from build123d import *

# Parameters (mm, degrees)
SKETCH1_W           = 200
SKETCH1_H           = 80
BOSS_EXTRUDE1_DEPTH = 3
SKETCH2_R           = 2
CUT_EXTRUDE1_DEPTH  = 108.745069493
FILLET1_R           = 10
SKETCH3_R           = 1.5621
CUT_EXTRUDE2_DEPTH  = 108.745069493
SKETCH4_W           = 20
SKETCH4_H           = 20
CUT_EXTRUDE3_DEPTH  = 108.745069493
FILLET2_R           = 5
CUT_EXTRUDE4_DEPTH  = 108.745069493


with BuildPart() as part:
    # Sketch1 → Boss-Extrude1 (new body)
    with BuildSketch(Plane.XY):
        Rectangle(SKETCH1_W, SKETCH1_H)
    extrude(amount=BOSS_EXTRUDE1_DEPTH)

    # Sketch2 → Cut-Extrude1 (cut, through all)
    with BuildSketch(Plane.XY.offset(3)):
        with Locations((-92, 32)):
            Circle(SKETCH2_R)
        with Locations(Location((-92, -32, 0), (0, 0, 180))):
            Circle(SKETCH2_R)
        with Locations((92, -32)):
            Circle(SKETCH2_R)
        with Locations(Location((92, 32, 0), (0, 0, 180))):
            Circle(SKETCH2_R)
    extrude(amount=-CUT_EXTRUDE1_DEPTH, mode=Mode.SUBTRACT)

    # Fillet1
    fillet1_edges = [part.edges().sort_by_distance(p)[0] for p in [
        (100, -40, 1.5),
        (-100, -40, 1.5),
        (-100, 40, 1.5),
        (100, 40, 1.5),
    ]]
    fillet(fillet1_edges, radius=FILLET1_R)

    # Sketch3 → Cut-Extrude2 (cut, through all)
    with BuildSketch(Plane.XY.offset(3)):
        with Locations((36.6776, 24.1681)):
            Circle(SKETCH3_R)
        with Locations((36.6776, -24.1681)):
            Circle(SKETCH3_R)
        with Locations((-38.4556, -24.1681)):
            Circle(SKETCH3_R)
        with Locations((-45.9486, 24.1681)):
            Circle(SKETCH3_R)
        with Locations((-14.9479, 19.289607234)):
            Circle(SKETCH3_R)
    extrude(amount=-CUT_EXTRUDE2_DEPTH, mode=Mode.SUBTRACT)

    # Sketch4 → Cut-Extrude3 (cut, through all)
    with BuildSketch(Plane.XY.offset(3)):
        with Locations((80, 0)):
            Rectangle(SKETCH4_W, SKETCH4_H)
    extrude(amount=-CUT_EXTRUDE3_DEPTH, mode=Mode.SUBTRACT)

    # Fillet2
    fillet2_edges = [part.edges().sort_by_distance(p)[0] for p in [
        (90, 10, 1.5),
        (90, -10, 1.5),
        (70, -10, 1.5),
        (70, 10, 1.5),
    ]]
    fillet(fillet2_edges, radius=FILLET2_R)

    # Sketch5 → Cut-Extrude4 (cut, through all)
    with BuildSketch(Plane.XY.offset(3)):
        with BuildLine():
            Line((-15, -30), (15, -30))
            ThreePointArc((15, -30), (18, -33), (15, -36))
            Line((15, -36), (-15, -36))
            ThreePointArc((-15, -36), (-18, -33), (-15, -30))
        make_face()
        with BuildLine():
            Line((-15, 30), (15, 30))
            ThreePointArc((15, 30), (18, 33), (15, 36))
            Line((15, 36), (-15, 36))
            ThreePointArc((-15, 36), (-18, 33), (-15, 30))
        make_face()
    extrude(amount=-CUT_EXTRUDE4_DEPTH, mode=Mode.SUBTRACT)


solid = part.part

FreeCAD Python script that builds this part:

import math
import FreeCAD as App
import Part
import Sketcher
Q = App.Units.Quantity


def edges_at(feature, points):
    """Names of the edges that pass closest to the given points."""
    edges = feature.Shape.Edges
    near = lambda p: min(range(len(edges)), key=lambda i: edges[i].distToShape(Part.Vertex(*p))[0])
    return sorted({f"Edge{near(p) + 1}" for p in points})


def add_polygon(sketch, points):
    """Adds a closed chain of lines whose ends are joined by coincident constraints."""
    first, n = sketch.GeometryCount, len(points)
    for a, b in zip(points, points[1:] + points[:1]):
        sketch.addGeometry(Part.LineSegment(App.Vector(*a, 0), App.Vector(*b, 0)), False)
    for i in range(n):
        sketch.addConstraint(Sketcher.Constraint("Coincident", first + i, 2, first + (i + 1) % n, 1))

doc = App.newDocument("Part")
body = doc.addObject("PartDesign::Body", "Body")

sketch1 = doc.addObject("Sketcher::SketchObject", "Sketch")
body.addObject(sketch1)
sketch1.AttachmentSupport = (doc.XY_Plane, [""])
sketch1.MapMode = "FlatFace"
add_polygon(sketch1, [(-100, 40), (-100, -40), (100, -40), (100, 40)])
sketch1.addConstraint(Sketcher.Constraint("Vertical", 0))
sketch1.addConstraint(Sketcher.Constraint("Horizontal", 1))
sketch1.addConstraint(Sketcher.Constraint("Vertical", 2))
sketch1.addConstraint(Sketcher.Constraint("Horizontal", 3))
sketch1.addConstraint(Sketcher.Constraint("Symmetric", 0, 2, 2, 2, -1, 1))
sketch1.addConstraint(Sketcher.Constraint("DistanceX", 1, 1, 1, 2, Q("200 mm")))
sketch1.addConstraint(Sketcher.Constraint("DistanceY", 0, 2, 0, 1, Q("80 mm")))
pad1 = doc.addObject("PartDesign::Pad", "Pad")
body.addObject(pad1)
pad1.Profile = sketch1
pad1.Length = 3

sketch2 = doc.addObject("Sketcher::SketchObject", "Sketch001")
body.addObject(sketch2)
sketch2.AttachmentSupport = (doc.XY_Plane, [""])
sketch2.MapMode = "FlatFace"
sketch2.AttachmentOffset = App.Placement(App.Vector(0, 0, 3), App.Rotation())
sketch2.addGeometry(Part.Circle(App.Vector(-92, 32, 0), App.Vector(0, 0, 1), 2), False)
sketch2.addGeometry(Part.Circle(App.Vector(-92, -32, 0), App.Vector(0, 0, 1), 2), False)
sketch2.addGeometry(Part.Circle(App.Vector(92, -32, 0), App.Vector(0, 0, 1), 2), False)
sketch2.addGeometry(Part.Circle(App.Vector(92, 32, 0), App.Vector(0, 0, 1), 2), False)
sketch2.addConstraint(Sketcher.Constraint("Equal", 0, 1))
sketch2.addConstraint(Sketcher.Constraint("Equal", 1, 2))
sketch2.addConstraint(Sketcher.Constraint("Equal", 2, 3))
sketch2.addConstraint(Sketcher.Constraint("Symmetric", 0, 3, 2, 3, -1, 1))
sketch2.addConstraint(Sketcher.Constraint("Symmetric", 1, 3, 3, 3, -1, 1))
sketch2.addConstraint(Sketcher.Constraint("Symmetric", 1, 3, 2, 3, -2))
sketch2.addConstraint(Sketcher.Constraint("Diameter", 0, Q("4 mm")))
sketch2.addConstraint(Sketcher.Constraint("DistanceX", 0, 3, -1, 1, Q("92 mm")))
sketch2.addConstraint(Sketcher.Constraint("DistanceY", -1, 1, 0, 3, Q("32 mm")))
pocket1 = doc.addObject("PartDesign::Pocket", "Pocket")
body.addObject(pocket1)
pocket1.Profile = sketch2
pocket1.Type = "ThroughAll"
doc.recompute()

fillet = doc.addObject("PartDesign::Fillet", "Fillet")
body.addObject(fillet)
fillet.Base = (pocket1, edges_at(pocket1, [
    (100, -40, 1.5),
    (-100, -40, 1.5),
    (-100, 40, 1.5),
    (100, 40, 1.5),
]))
fillet.Radius = 10

sketch3 = doc.addObject("Sketcher::SketchObject", "Sketch002")
body.addObject(sketch3)
sketch3.AttachmentSupport = (doc.XY_Plane, [""])
sketch3.MapMode = "FlatFace"
sketch3.AttachmentOffset = App.Placement(App.Vector(0, 0, 3), App.Rotation())
sketch3.addGeometry(Part.Circle(App.Vector(36.7, 24.2, 0), App.Vector(0, 0, 1), 1.6), False)
sketch3.addGeometry(Part.Circle(App.Vector(36.7, -24.2, 0), App.Vector(0, 0, 1), 1.6), False)
sketch3.addGeometry(Part.Circle(App.Vector(-38.5, -24.2, 0), App.Vector(0, 0, 1), 1.6), False)
sketch3.addGeometry(Part.Circle(App.Vector(-45.9, 24.2, 0), App.Vector(0, 0, 1), 1.6), False)
sketch3.addGeometry(Part.Circle(App.Vector(-14.9, 19.3, 0), App.Vector(0, 0, 1), 1.6), False)
sketch3.addConstraint(Sketcher.Constraint("Equal", 0, 1))
sketch3.addConstraint(Sketcher.Constraint("Equal", 1, 2))
sketch3.addConstraint(Sketcher.Constraint("Equal", 2, 3))
sketch3.addConstraint(Sketcher.Constraint("Equal", 3, 4))
sketch3.addConstraint(Sketcher.Constraint("Symmetric", 0, 3, 1, 3, -1))
sketch3.addConstraint(Sketcher.Constraint("Horizontal", 1, 3, 2, 3))
sketch3.addConstraint(Sketcher.Constraint("Horizontal", 0, 3, 3, 3))
sketch3.addConstraint(Sketcher.Constraint("Diameter", 0, Q("3.1242 mm")))
sketch3.addConstraint(Sketcher.Constraint("DistanceX", 3, 3, 2, 3, Q("7.493 mm")))
sketch3.addConstraint(Sketcher.Constraint("DistanceX", -1, 1, 0, 3, Q("36.6776 mm")))
sketch3.addConstraint(Sketcher.Constraint("DistanceY", -1, 1, 0, 3, Q("24.1681 mm")))
sketch3.addConstraint(Sketcher.Constraint("DistanceX", 2, 3, -1, 1, Q("38.4556 mm")))
sketch3.addConstraint(Sketcher.Constraint("DistanceX", 4, 3, -1, 1, Q("14.9479 mm")))
sketch3.addConstraint(Sketcher.Constraint("DistanceY", -1, 1, 4, 3, Q("19.289607 mm")))
pocket2 = doc.addObject("PartDesign::Pocket", "Pocket001")
body.addObject(pocket2)
pocket2.Profile = sketch3
pocket2.Type = "ThroughAll"

sketch4 = doc.addObject("Sketcher::SketchObject", "Sketch003")
body.addObject(sketch4)
sketch4.AttachmentSupport = (doc.XY_Plane, [""])
sketch4.MapMode = "FlatFace"
sketch4.AttachmentOffset = App.Placement(App.Vector(0, 0, 3), App.Rotation())
add_polygon(sketch4, [(70, 10), (70, -10), (90, -10), (90, 10)])
sketch4.addConstraint(Sketcher.Constraint("Vertical", 0))
sketch4.addConstraint(Sketcher.Constraint("Horizontal", 1))
sketch4.addConstraint(Sketcher.Constraint("Vertical", 2))
sketch4.addConstraint(Sketcher.Constraint("Horizontal", 3))
sketch4.addConstraint(Sketcher.Constraint("Equal", 3, 0))
sketch4.addConstraint(Sketcher.Constraint("DistanceX", 1, 1, 1, 2, Q("20 mm")))
sketch4.addConstraint(Sketcher.Constraint("DistanceX", -1, 1, 0, 2, Q("70 mm")))
sketch4.addConstraint(Sketcher.Constraint("DistanceY", 0, 2, -1, 1, Q("10 mm")))
pocket3 = doc.addObject("PartDesign::Pocket", "Pocket002")
body.addObject(pocket3)
pocket3.Profile = sketch4
pocket3.Type = "ThroughAll"
doc.recompute()

fillet2 = doc.addObject("PartDesign::Fillet", "Fillet001")
body.addObject(fillet2)
fillet2.Base = (pocket3, edges_at(pocket3, [
    (90, 10, 1.5),
    (90, -10, 1.5),
    (70, -10, 1.5),
    (70, 10, 1.5),
]))
fillet2.Radius = 5

sketch5 = doc.addObject("Sketcher::SketchObject", "Sketch004")
body.addObject(sketch5)
sketch5.AttachmentSupport = (doc.XY_Plane, [""])
sketch5.MapMode = "FlatFace"
sketch5.AttachmentOffset = App.Placement(App.Vector(0, 0, 3), App.Rotation())
sketch5.addGeometry(Part.LineSegment(App.Vector(15, -30, 0), App.Vector(-15, -30, 0)), False)
sketch5.addGeometry(Part.ArcOfCircle(Part.Circle(App.Vector(-15, -33, 0), App.Vector(0, 0, 1), 3), math.radians(90), math.radians(270)), False)
sketch5.addGeometry(Part.LineSegment(App.Vector(-15, -36, 0), App.Vector(15, -36, 0)), False)
sketch5.addGeometry(Part.ArcOfCircle(Part.Circle(App.Vector(15, -33, 0), App.Vector(0, 0, 1), 3), math.radians(-90), math.radians(90)), False)
sketch5.addGeometry(Part.LineSegment(App.Vector(-15, 30, 0), App.Vector(15, 30, 0)), False)
sketch5.addGeometry(Part.ArcOfCircle(Part.Circle(App.Vector(15, 33, 0), App.Vector(0, 0, 1), 3), math.radians(-90), math.radians(90)), False)
sketch5.addGeometry(Part.LineSegment(App.Vector(15, 36, 0), App.Vector(-15, 36, 0)), False)
sketch5.addGeometry(Part.ArcOfCircle(Part.Circle(App.Vector(-15, 33, 0), App.Vector(0, 0, 1), 3), math.radians(90), math.radians(270)), False)
sketch5.addConstraint(Sketcher.Constraint("Tangent", 0, 2, 1, 1))
sketch5.addConstraint(Sketcher.Constraint("Tangent", 1, 2, 2, 1))
sketch5.addConstraint(Sketcher.Constraint("Tangent", 2, 2, 3, 1))
sketch5.addConstraint(Sketcher.Constraint("Tangent", 3, 2, 0, 1))
sketch5.addConstraint(Sketcher.Constraint("Tangent", 4, 2, 5, 1))
sketch5.addConstraint(Sketcher.Constraint("Tangent", 5, 2, 6, 1))
sketch5.addConstraint(Sketcher.Constraint("Tangent", 6, 2, 7, 1))
sketch5.addConstraint(Sketcher.Constraint("Tangent", 7, 2, 4, 1))
sketch5.addConstraint(Sketcher.Constraint("Horizontal", 0))
sketch5.addConstraint(Sketcher.Constraint("Horizontal", 2))
sketch5.addConstraint(Sketcher.Constraint("Horizontal", 4))
sketch5.addConstraint(Sketcher.Constraint("Horizontal", 6))
sketch5.addConstraint(Sketcher.Constraint("Equal", 3, 5))
sketch5.addConstraint(Sketcher.Constraint("Symmetric", 1, 3, 5, 3, -1, 1))
sketch5.addConstraint(Sketcher.Constraint("Vertical", 3, 3, 5, 3))
sketch5.addConstraint(Sketcher.Constraint("Vertical", 1, 3, 7, 3))
sketch5.addConstraint(Sketcher.Constraint("Radius", 1, Q("3 mm")))
sketch5.addConstraint(Sketcher.Constraint("DistanceX", 0, 2, 0, 1, Q("30 mm")))
sketch5.addConstraint(Sketcher.Constraint("DistanceY", 1, 3, -1, 1, Q("33 mm")))
pocket4 = doc.addObject("PartDesign::Pocket", "Pocket003")
body.addObject(pocket4)
pocket4.Profile = sketch5
pocket4.Type = "ThroughAll"

doc.recompute()
